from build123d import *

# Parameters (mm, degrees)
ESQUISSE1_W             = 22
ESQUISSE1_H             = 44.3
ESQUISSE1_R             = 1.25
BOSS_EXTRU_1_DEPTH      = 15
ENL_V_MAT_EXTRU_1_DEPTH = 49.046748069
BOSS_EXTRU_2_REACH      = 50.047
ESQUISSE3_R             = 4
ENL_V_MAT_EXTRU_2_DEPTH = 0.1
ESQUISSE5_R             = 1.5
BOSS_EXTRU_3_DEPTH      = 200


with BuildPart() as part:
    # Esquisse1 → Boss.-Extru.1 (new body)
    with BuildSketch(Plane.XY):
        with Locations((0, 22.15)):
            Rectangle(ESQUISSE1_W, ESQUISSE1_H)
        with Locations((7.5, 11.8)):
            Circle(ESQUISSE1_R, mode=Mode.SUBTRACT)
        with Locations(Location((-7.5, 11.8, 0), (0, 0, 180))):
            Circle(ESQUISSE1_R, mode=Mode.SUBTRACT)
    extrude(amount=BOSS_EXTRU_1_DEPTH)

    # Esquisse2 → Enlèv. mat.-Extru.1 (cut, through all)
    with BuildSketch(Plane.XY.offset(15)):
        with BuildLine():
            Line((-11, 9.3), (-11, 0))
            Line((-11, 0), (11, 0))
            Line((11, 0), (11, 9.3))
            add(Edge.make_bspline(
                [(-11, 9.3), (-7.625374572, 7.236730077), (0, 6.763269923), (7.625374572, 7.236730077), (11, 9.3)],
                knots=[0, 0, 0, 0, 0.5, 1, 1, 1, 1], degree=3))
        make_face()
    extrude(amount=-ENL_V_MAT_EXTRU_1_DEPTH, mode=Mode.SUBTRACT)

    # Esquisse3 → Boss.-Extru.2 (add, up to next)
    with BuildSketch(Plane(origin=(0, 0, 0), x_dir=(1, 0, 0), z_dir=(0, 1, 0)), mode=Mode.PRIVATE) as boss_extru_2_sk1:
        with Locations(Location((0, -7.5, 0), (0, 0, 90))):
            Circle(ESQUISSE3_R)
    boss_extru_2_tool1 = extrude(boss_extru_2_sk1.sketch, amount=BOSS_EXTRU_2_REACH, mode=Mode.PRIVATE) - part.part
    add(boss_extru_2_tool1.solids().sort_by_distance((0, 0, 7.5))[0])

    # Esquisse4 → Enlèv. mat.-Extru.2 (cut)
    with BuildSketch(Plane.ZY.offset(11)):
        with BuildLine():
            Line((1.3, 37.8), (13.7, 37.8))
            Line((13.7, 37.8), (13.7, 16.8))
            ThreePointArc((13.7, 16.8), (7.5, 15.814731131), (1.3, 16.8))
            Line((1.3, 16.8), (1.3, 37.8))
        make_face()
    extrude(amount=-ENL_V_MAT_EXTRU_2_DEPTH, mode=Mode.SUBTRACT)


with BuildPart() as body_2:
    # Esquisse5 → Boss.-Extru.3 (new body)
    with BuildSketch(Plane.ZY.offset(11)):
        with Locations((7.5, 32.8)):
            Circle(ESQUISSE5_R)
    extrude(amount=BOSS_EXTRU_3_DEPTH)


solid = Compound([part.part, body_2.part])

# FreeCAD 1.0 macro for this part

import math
import FreeCAD as App
import Part
import Sketcher
from FreeCAD import Vector
Q = App.Units.Quantity

doc = App.newDocument("Part")
body = doc.addObject("PartDesign::Body", "Body")

# Sketch on XY plane
sketch1 = body.newObject("Sketcher::SketchObject", "Sketch")
sketch1.AttachmentSupport = (doc.getObject("XY_Plane"), [""])
sketch1.MapMode = "FlatFace"
sketch1.addGeometry([
    Part.LineSegment(Vector(-11, 44.3, 0), Vector(-11, 0, 0)),  # 0
    Part.LineSegment(Vector(-11, 0, 0), Vector(11, 0, 0)),  # 1
    Part.LineSegment(Vector(11, 0, 0), Vector(11, 44.3, 0)),  # 2
    Part.LineSegment(Vector(11, 44.3, 0), Vector(-11, 44.3, 0)),  # 3
    Part.Circle(Vector(-7.5, 11.8, 0), Vector(0, 0, 1), 1.2),  # 4
    Part.Circle(Vector(7.5, 11.8, 0), Vector(0, 0, 1), 1.2),  # 5
], False)
sketch1.addConstraint([
    Sketcher.Constraint("Coincident", 0, 2, 1, 1),
    Sketcher.Constraint("Coincident", 1, 2, 2, 1),
    Sketcher.Constraint("Coincident", 2, 2, 3, 1),
    Sketcher.Constraint("Coincident", 3, 2, 0, 1),
    Sketcher.Constraint("Vertical", 0),
    Sketcher.Constraint("Horizontal", 1),
    Sketcher.Constraint("Vertical", 2),
    Sketcher.Constraint("Horizontal", 3),
    Sketcher.Constraint("Equal", 4, 5),
    Sketcher.Constraint("Symmetric", 0, 2, 1, 2, -1, 1),
    Sketcher.Constraint("Symmetric", 4, 3, 5, 3, -2),
    Sketcher.Constraint("Diameter", 4, Q("2.5 mm")),
    Sketcher.Constraint("DistanceX", 1, 1, 1, 2, Q("22 mm")),
    Sketcher.Constraint("DistanceY", 0, 2, 0, 1, Q("44.3 mm")),
    Sketcher.Constraint("DistanceX", 4, 3, 5, 3, Q("15 mm")),
    Sketcher.Constraint("DistanceY", -1, 1, 4, 3, Q("11.8 mm")),
])
pad1 = body.newObject("PartDesign::Pad", "Pad")
pad1.Profile = sketch1
pad1.Length = 15

# Sketch on XY plane
sketch2 = body.newObject("Sketcher::SketchObject", "Sketch001")
sketch2.AttachmentSupport = (doc.getObject("XY_Plane"), [""])
sketch2.MapMode = "FlatFace"
sketch2.AttachmentOffset = App.Placement(Vector(0, 0, 15), App.Rotation())
sketch2.addGeometry([
    Part.LineSegment(Vector(-11, 9.3, 0), Vector(-11, 0, 0)),
    Part.LineSegment(Vector(-11, 0, 0), Vector(11, 0, 0)),
    Part.LineSegment(Vector(11, 0, 0), Vector(11, 9.3, 0)),
    Part.BSplineCurve([Vector(-11, 9.3, 0), Vector(-7.625375, 7.23673, 0), Vector(0, 6.76327, 0), Vector(7.625375, 7.23673, 0), Vector(11, 9.3, 0)], [4, 1, 4], [0, 0.5, 1], False, 3, [1, 1, 1, 1, 1], False),
], False)
sketch2.addConstraint([
    Sketcher.Constraint("Block", 3),
    Sketcher.Constraint("Coincident", 0, 2, 1, 1),
    Sketcher.Constraint("Coincident", 1, 2, 2, 1),
    Sketcher.Constraint("Coincident", 2, 2, 3, 2),
    Sketcher.Constraint("Coincident", 3, 1, 0, 1),
    Sketcher.Constraint("Vertical", 0),
    Sketcher.Constraint("Horizontal", 1),
    Sketcher.Constraint("Vertical", 2),
    Sketcher.Constraint("PointOnObject", 0, 2, -1),
])
pocket1 = body.newObject("PartDesign::Pocket", "Pocket")
pocket1.Profile = sketch2
pocket1.Type = "ThroughAll"

# Sketch on XZ plane
sketch3 = body.newObject("Sketcher::SketchObject", "Sketch002")
sketch3.AttachmentSupport = (doc.getObject("XZ_Plane"), [""])
sketch3.MapMode = "FlatFace"
sketch3.addGeometry(Part.Circle(Vector(0, 7.5, 0), Vector(0, 0, 1), 4), False)
sketch3.addConstraint([
    Sketcher.Constraint("PointOnObject", 0, 3, -2),
    Sketcher.Constraint("Diameter", 0, Q("8 mm")),
    Sketcher.Constraint("DistanceY", -1, 1, 0, 3, Q("7.5 mm")),
])
pad2 = body.newObject("PartDesign::Pad", "Pad001")
pad2.Profile = sketch3
pad2.Type = "UpToFirst"
pad2.Reversed = True

# Sketch on YZ plane
sketch4 = body.newObject("Sketcher::SketchObject", "Sketch003")
sketch4.AttachmentSupport = (doc.getObject("YZ_Plane"), [""])
sketch4.MapMode = "FlatFace"
sketch4.AttachmentOffset = App.Placement(Vector(0, 0, -11), App.Rotation())
sketch4.addGeometry([
    Part.LineSegment(Vector(38, 14, 0), Vector(38, 1, 0)),
    Part.LineSegment(Vector(38, 1, 0), Vector(17, 1, 0)),
    Part.ArcOfCircle(Part.Circle(Vector(36, 8, 0), Vector(0, 0, 1), 20), math.radians(162), math.radians(198)),
    Part.LineSegment(Vector(17, 14, 0), Vector(38, 14, 0)),
], False)
sketch4.addConstraint([
    Sketcher.Constraint("Coincident", 0, 2, 1, 1),
    Sketcher.Constraint("Coincident", 1, 2, 2, 2),
    Sketcher.Constraint("Coincident", 2, 1, 3, 1),
    Sketcher.Constraint("Coincident", 3, 2, 0, 1),
    Sketcher.Constraint("Vertical", 0),
    Sketcher.Constraint("Horizontal", 1),
    Sketcher.Constraint("Horizontal", 3),
    Sketcher.Constraint("Vertical", 1, 2, 2, 1),
    Sketcher.Constraint("Radius", 2, Q("20 mm")),
    Sketcher.Constraint("DistanceX", 1, 2, 1, 1, Q("21 mm")),
    Sketcher.Constraint("DistanceY", 0, 2, 0, 1, Q("12.4 mm")),
    Sketcher.Constraint("DistanceY", -1, 1, 2, 3, Q("7.5 mm")),
    Sketcher.Constraint("DistanceX", -1, 1, 0, 2, Q("37.8 mm")),
])
pocket2 = body.newObject("PartDesign::Pocket", "Pocket001")
pocket2.Profile = sketch4
pocket2.Length = 0.1
pocket2.Reversed = True
body2 = doc.addObject("PartDesign::Body", "Body001")

# Sketch on YZ plane
sketch5 = body2.newObject("Sketcher::SketchObject", "Sketch004")
sketch5.AttachmentSupport = (doc.getObject("YZ_Plane001"), [""])
sketch5.MapMode = "FlatFace"
sketch5.AttachmentOffset = App.Placement(Vector(0, 0, -11), App.Rotation())
sketch5.addGeometry(Part.Circle(Vector(32.8, 7.5, 0), Vector(0, 0, 1), 1.5), False)
sketch5.addConstraint([
    Sketcher.Constraint("Diameter", 0, Q("3 mm")),
    Sketcher.Constraint("DistanceX", -1, 1, 0, 3, Q("32.8 mm")),
    Sketcher.Constraint("DistanceY", -1, 1, 0, 3, Q("7.5 mm")),
])
pad3 = body2.newObject("PartDesign::Pad", "Pad002")
pad3.Profile = sketch5
pad3.Length = 200
pad3.Reversed = True

doc.recompute()
